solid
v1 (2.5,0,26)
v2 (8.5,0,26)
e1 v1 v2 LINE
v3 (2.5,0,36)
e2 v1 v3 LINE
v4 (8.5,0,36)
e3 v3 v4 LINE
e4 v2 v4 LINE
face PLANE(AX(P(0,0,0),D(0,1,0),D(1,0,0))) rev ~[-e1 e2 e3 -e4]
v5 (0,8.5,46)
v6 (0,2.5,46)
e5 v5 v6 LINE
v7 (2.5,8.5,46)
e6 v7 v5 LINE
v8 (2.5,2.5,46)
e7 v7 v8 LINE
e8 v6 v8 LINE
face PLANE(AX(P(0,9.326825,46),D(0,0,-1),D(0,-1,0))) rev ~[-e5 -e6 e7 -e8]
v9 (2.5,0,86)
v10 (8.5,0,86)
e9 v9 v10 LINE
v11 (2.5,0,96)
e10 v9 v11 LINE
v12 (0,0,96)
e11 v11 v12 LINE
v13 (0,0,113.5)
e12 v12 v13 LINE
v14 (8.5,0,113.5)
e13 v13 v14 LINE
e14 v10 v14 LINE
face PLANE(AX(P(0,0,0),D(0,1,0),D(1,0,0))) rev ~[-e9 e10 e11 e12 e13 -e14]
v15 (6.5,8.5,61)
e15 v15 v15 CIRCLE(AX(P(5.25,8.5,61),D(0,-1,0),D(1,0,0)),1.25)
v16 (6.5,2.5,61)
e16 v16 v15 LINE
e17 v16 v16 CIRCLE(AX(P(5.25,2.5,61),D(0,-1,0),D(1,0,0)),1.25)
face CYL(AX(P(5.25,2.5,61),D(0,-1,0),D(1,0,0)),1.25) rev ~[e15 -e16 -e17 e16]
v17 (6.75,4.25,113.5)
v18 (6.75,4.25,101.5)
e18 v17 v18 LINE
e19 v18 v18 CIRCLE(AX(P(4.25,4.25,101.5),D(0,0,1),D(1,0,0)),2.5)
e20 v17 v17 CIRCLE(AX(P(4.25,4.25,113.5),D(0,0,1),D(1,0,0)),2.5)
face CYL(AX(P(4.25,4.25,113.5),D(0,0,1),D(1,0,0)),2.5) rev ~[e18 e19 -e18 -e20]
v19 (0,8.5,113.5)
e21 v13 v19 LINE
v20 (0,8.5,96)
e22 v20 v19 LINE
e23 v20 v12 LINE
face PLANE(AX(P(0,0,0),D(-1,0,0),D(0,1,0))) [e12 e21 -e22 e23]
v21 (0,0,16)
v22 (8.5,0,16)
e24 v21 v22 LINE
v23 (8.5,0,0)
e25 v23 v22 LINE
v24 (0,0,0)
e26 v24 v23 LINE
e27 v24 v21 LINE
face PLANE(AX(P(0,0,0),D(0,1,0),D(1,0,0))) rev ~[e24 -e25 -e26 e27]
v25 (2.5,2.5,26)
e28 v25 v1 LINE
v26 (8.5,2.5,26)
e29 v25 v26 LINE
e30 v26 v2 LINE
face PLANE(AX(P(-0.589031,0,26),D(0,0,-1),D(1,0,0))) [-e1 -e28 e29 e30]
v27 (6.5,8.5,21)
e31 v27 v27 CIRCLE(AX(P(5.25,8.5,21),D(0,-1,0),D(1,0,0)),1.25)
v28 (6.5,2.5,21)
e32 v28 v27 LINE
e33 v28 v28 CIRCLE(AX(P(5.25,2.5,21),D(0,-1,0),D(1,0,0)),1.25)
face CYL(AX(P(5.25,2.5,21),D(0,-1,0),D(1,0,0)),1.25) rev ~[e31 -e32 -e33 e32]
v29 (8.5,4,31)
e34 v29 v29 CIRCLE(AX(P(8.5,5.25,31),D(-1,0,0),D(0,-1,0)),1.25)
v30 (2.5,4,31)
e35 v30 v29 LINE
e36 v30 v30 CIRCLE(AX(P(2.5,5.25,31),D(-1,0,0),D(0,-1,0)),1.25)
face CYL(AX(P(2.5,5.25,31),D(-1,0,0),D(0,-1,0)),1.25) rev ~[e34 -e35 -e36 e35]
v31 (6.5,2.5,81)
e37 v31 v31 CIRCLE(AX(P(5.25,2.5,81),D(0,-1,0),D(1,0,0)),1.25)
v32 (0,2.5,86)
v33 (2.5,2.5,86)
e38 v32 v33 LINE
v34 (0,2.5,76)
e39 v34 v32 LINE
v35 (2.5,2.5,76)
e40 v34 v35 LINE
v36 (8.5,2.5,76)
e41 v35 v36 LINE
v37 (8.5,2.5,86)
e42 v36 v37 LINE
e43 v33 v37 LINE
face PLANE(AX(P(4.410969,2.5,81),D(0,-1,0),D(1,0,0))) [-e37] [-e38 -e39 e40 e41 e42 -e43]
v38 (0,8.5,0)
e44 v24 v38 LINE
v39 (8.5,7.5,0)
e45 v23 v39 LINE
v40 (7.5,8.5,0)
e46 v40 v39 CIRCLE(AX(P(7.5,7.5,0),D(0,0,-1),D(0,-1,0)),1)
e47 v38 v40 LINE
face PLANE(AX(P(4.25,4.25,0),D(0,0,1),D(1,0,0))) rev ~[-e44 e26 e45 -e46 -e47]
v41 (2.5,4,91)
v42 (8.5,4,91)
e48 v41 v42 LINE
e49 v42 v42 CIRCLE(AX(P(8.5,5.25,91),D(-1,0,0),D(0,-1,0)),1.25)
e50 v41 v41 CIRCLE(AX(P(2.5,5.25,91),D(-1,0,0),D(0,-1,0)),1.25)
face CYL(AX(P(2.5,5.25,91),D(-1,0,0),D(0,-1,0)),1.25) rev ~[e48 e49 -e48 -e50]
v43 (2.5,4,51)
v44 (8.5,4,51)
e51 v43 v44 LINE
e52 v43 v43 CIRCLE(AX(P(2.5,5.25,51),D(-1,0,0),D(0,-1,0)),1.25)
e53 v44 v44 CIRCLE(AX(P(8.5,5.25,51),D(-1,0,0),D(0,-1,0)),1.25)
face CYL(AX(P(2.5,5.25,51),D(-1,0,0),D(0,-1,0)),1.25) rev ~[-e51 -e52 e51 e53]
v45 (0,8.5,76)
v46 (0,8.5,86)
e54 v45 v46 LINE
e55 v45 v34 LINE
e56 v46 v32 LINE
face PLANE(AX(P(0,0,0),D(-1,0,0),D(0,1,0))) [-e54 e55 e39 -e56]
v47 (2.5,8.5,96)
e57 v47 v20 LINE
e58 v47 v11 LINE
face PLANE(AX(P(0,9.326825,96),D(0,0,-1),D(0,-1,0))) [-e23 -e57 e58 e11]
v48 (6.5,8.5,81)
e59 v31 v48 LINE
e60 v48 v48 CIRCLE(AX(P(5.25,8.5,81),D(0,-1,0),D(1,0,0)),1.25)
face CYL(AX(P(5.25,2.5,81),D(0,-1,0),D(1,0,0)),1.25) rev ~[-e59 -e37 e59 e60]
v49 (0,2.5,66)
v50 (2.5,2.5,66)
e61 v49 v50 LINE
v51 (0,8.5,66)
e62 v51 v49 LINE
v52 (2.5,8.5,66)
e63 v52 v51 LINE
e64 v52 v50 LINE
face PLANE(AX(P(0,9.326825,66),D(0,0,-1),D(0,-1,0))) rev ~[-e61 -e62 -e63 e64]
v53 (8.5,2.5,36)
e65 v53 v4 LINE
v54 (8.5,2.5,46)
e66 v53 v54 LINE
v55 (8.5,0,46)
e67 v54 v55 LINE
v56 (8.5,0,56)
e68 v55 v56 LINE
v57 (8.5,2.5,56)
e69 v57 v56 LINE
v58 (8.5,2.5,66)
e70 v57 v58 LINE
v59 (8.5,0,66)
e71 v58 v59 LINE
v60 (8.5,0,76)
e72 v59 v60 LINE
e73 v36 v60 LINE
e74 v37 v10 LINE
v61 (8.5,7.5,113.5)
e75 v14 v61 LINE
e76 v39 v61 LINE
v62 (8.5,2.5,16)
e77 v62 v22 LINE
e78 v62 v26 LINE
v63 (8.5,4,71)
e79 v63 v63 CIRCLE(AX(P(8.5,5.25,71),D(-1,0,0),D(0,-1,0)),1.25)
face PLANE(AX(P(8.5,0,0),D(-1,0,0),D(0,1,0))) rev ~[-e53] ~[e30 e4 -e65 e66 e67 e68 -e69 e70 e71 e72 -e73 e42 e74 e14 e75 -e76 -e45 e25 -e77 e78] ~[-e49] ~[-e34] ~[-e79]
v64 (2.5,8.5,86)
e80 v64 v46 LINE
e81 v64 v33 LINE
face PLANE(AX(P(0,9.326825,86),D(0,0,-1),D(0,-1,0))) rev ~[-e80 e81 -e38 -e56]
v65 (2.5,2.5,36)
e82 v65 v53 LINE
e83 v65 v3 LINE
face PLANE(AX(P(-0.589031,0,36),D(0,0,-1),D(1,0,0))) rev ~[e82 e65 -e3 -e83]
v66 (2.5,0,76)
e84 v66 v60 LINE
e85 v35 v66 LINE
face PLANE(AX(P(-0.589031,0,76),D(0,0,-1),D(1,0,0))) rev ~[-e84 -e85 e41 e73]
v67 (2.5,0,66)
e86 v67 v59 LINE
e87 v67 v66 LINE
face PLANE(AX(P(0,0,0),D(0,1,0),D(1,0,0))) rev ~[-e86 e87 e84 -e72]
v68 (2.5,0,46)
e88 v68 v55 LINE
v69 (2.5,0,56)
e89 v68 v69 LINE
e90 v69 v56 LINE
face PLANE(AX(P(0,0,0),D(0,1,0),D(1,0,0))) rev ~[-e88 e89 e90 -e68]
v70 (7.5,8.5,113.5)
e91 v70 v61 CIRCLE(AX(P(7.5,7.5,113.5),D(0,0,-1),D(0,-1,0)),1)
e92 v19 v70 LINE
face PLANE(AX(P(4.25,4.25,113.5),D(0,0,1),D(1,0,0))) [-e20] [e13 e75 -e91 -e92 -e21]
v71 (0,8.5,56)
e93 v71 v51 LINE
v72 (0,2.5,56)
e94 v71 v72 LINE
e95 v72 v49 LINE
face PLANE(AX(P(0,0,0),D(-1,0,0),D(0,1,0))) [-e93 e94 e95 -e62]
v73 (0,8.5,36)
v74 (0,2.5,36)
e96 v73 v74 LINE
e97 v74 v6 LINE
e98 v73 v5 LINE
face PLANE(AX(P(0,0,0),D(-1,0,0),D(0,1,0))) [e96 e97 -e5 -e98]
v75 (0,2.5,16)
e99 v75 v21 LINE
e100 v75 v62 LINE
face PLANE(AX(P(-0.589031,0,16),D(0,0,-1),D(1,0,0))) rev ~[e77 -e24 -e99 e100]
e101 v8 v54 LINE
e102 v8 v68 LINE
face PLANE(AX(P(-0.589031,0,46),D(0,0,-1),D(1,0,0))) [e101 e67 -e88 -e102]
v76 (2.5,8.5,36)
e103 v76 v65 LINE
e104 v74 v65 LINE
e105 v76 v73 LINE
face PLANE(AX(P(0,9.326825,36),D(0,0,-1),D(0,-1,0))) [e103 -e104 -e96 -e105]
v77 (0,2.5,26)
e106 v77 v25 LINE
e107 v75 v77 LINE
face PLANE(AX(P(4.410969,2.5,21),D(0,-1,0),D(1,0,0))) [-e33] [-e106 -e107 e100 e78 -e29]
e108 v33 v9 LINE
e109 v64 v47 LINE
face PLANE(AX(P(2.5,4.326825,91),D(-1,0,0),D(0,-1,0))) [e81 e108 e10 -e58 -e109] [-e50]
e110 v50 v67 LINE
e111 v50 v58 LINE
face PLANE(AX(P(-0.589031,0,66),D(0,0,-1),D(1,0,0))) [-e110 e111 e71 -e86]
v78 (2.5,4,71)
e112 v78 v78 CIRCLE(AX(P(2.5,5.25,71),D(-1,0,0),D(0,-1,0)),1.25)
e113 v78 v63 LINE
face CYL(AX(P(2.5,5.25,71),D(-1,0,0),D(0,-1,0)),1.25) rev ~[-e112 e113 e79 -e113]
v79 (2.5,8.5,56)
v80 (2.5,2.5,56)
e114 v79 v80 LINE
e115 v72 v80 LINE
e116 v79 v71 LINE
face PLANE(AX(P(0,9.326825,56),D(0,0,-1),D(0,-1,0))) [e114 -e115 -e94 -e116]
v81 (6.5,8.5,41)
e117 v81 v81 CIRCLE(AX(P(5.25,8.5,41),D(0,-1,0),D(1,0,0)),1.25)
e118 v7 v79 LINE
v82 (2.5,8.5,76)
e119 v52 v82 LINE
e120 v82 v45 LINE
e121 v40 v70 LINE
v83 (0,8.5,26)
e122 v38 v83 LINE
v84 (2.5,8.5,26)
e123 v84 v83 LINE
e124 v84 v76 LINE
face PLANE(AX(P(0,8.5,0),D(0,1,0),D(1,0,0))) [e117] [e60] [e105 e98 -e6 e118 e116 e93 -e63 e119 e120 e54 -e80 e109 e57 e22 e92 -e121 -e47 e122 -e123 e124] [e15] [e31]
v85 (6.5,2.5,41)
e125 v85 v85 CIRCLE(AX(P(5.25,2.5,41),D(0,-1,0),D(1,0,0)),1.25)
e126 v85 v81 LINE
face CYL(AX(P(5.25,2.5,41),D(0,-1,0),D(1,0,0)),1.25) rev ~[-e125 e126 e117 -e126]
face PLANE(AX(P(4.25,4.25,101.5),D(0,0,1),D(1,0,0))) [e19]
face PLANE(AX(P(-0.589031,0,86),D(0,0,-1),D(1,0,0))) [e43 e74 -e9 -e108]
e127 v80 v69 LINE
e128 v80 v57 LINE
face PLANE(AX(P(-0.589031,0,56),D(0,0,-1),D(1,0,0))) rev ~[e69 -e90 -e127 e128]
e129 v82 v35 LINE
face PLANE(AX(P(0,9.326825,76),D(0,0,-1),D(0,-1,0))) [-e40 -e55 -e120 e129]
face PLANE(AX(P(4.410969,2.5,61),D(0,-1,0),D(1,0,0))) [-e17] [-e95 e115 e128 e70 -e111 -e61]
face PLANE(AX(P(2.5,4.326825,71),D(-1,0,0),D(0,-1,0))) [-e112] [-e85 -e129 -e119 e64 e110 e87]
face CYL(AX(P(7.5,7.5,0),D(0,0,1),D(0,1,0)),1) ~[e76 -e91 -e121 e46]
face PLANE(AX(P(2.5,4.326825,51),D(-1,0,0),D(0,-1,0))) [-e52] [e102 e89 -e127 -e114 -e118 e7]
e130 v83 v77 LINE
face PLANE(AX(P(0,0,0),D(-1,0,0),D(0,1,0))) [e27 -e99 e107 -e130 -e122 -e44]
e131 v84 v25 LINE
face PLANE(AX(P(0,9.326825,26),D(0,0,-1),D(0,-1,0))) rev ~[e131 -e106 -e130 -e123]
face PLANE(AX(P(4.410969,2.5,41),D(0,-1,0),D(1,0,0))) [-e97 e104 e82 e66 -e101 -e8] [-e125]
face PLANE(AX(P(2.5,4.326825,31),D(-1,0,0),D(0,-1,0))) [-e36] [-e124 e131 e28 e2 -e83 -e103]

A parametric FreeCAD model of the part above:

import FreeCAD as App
import Part
import Sketcher

V = App.Vector
Q = App.Units.Quantity


def edges_at(feature, points):
    """Names of the edges that pass closest to the given points."""
    edges = feature.Shape.Edges
    near = lambda p: min(range(len(edges)), key=lambda i: edges[i].distToShape(Part.Vertex(*p))[0])
    return sorted({f"Edge{near(p) + 1}" for p in points})

doc = App.newDocument("Part")
body = doc.addObject("PartDesign::Body", "Body")

sketch1 = doc.addObject("Sketcher::SketchObject", "Sketch")
body.addObject(sketch1)
sketch1.AttachmentSupport = (doc.XY_Plane, [""])
sketch1.MapMode = "FlatFace"
sketch1.addGeometry(Part.LineSegment(V(0, 8, 0), V(0, 0, 0)), False)
sketch1.addGeometry(Part.LineSegment(V(0, 0, 0), V(8, 0, 0)), False)
sketch1.addGeometry(Part.LineSegment(V(8, 0, 0), V(8, 8, 0)), False)
sketch1.addGeometry(Part.LineSegment(V(8, 8, 0), V(0, 8, 0)), False)
sketch1.addConstraint(Sketcher.Constraint("Coincident", 0, 2, 1, 1))
sketch1.addConstraint(Sketcher.Constraint("Coincident", 1, 2, 2, 1))
sketch1.addConstraint(Sketcher.Constraint("Coincident", 2, 2, 3, 1))
sketch1.addConstraint(Sketcher.Constraint("Coincident", 3, 2, 0, 1))
sketch1.addConstraint(Sketcher.Constraint("Vertical", 0))
sketch1.addConstraint(Sketcher.Constraint("Horizontal", 1))
sketch1.addConstraint(Sketcher.Constraint("Vertical", 2))
sketch1.addConstraint(Sketcher.Constraint("Horizontal", 3))
sketch1.addConstraint(Sketcher.Constraint("Coincident", 0, 2, -1, 1))
sketch1.addConstraint(Sketcher.Constraint("Equal", 3, 0))
sketch1.addConstraint(Sketcher.Constraint("DistanceX", 1, 1, 1, 2, Q("8.5 mm")))
pad1 = doc.addObject("PartDesign::Pad", "Pad")
body.addObject(pad1)
pad1.Profile = sketch1
pad1.Length = 113.5

sketch2 = doc.addObject("Sketcher::SketchObject", "Sketch001")
body.addObject(sketch2)
sketch2.AttachmentSupport = (doc.XZ_Plane, [""])
sketch2.MapMode = "FlatFace"
sketch2.addGeometry(Part.LineSegment(V(-1, 26, 0), V(-1, 16, 0)), False)
sketch2.addGeometry(Part.LineSegment(V(-1, 16, 0), V(9, 16, 0)), False)
sketch2.addGeometry(Part.LineSegment(V(9, 16, 0), V(9, 26, 0)), False)
sketch2.addGeometry(Part.LineSegment(V(9, 26, 0), V(-1, 26, 0)), False)
sketch2.addConstraint(Sketcher.Constraint("Coincident", 0, 2, 1, 1))
sketch2.addConstraint(Sketcher.Constraint("Coincident", 1, 2, 2, 1))
sketch2.addConstraint(Sketcher.Constraint("Coincident", 2, 2, 3, 1))
sketch2.addConstraint(Sketcher.Constraint("Coincident", 3, 2, 0, 1))
sketch2.addConstraint(Sketcher.Constraint("Vertical", 0))
sketch2.addConstraint(Sketcher.Constraint("Horizontal", 1))
sketch2.addConstraint(Sketcher.Constraint("Vertical", 2))
sketch2.addConstraint(Sketcher.Constraint("Horizontal", 3))
sketch2.addConstraint(Sketcher.Constraint("Equal", 3, 0))
sketch2.addConstraint(Sketcher.Constraint("DistanceX", 1, 1, 1, 2, Q("10 mm")))
sketch2.addConstraint(Sketcher.Constraint("DistanceY", -1, 1, 0, 2, Q("16 mm")))
sketch2.addConstraint(Sketcher.Constraint("DistanceX", 0, 2, -1, 1, Q("0.589031 mm")))
pocket1 = doc.addObject("PartDesign::Pocket", "Pocket")
body.addObject(pocket1)
pocket1.Profile = sketch2
pocket1.Length = 2.5
doc.recompute()

linearpattern = doc.addObject("PartDesign::LinearPattern", "LinearPattern")
body.addObject(linearpattern)
linearpattern.Originals = [pocket1]
linearpattern.Direction = (doc.Z_Axis, [""])
linearpattern.Mode = "offset"
linearpattern.Offset = 20
linearpattern.Occurrences = 4
body.Tip = linearpattern

sketch3 = doc.addObject("Sketcher::SketchObject", "Sketch002")
body.addObject(sketch3)
sketch3.AttachmentSupport = (doc.YZ_Plane, [""])
sketch3.MapMode = "FlatFace"
sketch3.addGeometry(Part.LineSegment(V(9, 36, 0), V(9, 26, 0)), False)
sketch3.addGeometry(Part.LineSegment(V(9, 26, 0), V(-1, 26, 0)), False)
sketch3.addGeometry(Part.LineSegment(V(-1, 26, 0), V(-1, 36, 0)), False)
sketch3.addGeometry(Part.LineSegment(V(-1, 36, 0), V(9, 36, 0)), False)
sketch3.addConstraint(Sketcher.Constraint("Coincident", 0, 2, 1, 1))
sketch3.addConstraint(Sketcher.Constraint("Coincident", 1, 2, 2, 1))
sketch3.addConstraint(Sketcher.Constraint("Coincident", 2, 2, 3, 1))
sketch3.addConstraint(Sketcher.Constraint("Coincident", 3, 2, 0, 1))
sketch3.addConstraint(Sketcher.Constraint("Vertical", 0))
sketch3.addConstraint(Sketcher.Constraint("Horizontal", 1))
sketch3.addConstraint(Sketcher.Constraint("Vertical", 2))
sketch3.addConstraint(Sketcher.Constraint("Horizontal", 3))
sketch3.addConstraint(Sketcher.Constraint("Equal", 3, 0))
sketch3.addConstraint(Sketcher.Constraint("DistanceX", 1, 2, 1, 1, Q("10 mm")))
sketch3.addConstraint(Sketcher.Constraint("DistanceY", -1, 1, 0, 2, Q("26 mm")))
sketch3.addConstraint(Sketcher.Constraint("DistanceX", -1, 1, 0, 2, Q("9.326825 mm")))
pocket2 = doc.addObject("PartDesign::Pocket", "Pocket001")
body.addObject(pocket2)
pocket2.Profile = sketch3
pocket2.Length = 2.5
pocket2.Reversed = True
doc.recompute()

linearpattern2 = doc.addObject("PartDesign::LinearPattern", "LinearPattern001")
body.addObject(linearpattern2)
linearpattern2.Originals = [pocket2]
linearpattern2.Direction = (doc.Z_Axis, [""])
linearpattern2.Mode = "offset"
linearpattern2.Offset = 20
linearpattern2.Occurrences = 4
body.Tip = linearpattern2
doc.recompute()

fillet = doc.addObject("PartDesign::Fillet", "Fillet")
body.addObject(fillet)
fillet.Base = (linearpattern2, edges_at(linearpattern2, [(8.5, 8.5, 56.75)]))
fillet.Radius = 1

sketch4 = doc.addObject("Sketcher::SketchObject", "Sketch003")
body.addObject(sketch4)
sketch4.AttachmentSupport = (doc.XZ_Plane, [""])
sketch4.MapMode = "FlatFace"
sketch4.AttachmentOffset = App.Placement(V(0, 0, -2.5), App.Rotation())
sketch4.addGeometry(Part.Circle(V(5.2, 21, 0), V(0, 0, 1), 1.2), False)
sketch4.addConstraint(Sketcher.Constraint("Diameter", 0, Q("2.5 mm")))
sketch4.addConstraint(Sketcher.Constraint("DistanceY", -1, 1, 0, 3, Q("21 mm")))
sketch4.addConstraint(Sketcher.Constraint("DistanceX", -1, 1, 0, 3, Q("5.25 mm")))
pocket3 = doc.addObject("PartDesign::Pocket", "Pocket002")
body.addObject(pocket3)
pocket3.Profile = sketch4
pocket3.Type = "ThroughAll"
doc.recompute()

linearpattern3 = doc.addObject("PartDesign::LinearPattern", "LinearPattern002")
body.addObject(linearpattern3)
linearpattern3.Originals = [pocket3]
linearpattern3.Direction = (doc.Z_Axis, [""])
linearpattern3.Mode = "offset"
linearpattern3.Offset = 20
linearpattern3.Occurrences = 4
body.Tip = linearpattern3

sketch5 = doc.addObject("Sketcher::SketchObject", "Sketch004")
body.addObject(sketch5)
sketch5.AttachmentSupport = (doc.YZ_Plane, [""])
sketch5.MapMode = "FlatFace"
sketch5.AttachmentOffset = App.Placement(V(0, 0, 2.5), App.Rotation())
sketch5.addGeometry(Part.Circle(V(5.2, 31, 0), V(0, 0, 1), 1.2), False)
sketch5.addConstraint(Sketcher.Constraint("Diameter", 0, Q("2.5 mm")))
sketch5.addConstraint(Sketcher.Constraint("DistanceY", -1, 1, 0, 3, Q("31 mm")))
sketch5.addConstraint(Sketcher.Constraint("DistanceX", -1, 1, 0, 3, Q("5.25 mm")))
pocket4 = doc.addObject("PartDesign::Pocket", "Pocket003")
body.addObject(pocket4)
pocket4.Profile = sketch5
pocket4.Type = "ThroughAll"
pocket4.Reversed = True
doc.recompute()

linearpattern4 = doc.addObject("PartDesign::LinearPattern", "LinearPattern003")
body.addObject(linearpattern4)
linearpattern4.Originals = [pocket4]
linearpattern4.Direction = (doc.Z_Axis, [""])
linearpattern4.Mode = "offset"
linearpattern4.Offset = 20
linearpattern4.Occurrences = 4
body.Tip = linearpattern4

sketch6 = doc.addObject("Sketcher::SketchObject", "Sketch005")
body.addObject(sketch6)
sketch6.AttachmentSupport = (doc.XY_Plane, [""])
sketch6.MapMode = "FlatFace"
sketch6.AttachmentOffset = App.Placement(V(0, 0, 113.5), App.Rotation())
sketch6.addGeometry(Part.Circle(V(4.2, 4.2, 0), V(0, 0, 1), 2.5), False)
sketch6.addConstraint(Sketcher.Constraint("Diameter", 0, Q("5 mm")))
sketch6.addConstraint(Sketcher.Constraint("DistanceX", -1, 1, 0, 3, Q("4.25 mm")))
sketch6.addConstraint(Sketcher.Constraint("DistanceY", -1, 1, 0, 3, Q("4.25 mm")))
pocket5 = doc.addObject("PartDesign::Pocket", "Pocket004")
body.addObject(pocket5)
pocket5.Profile = sketch6
pocket5.Length = 12

doc.recompute()
